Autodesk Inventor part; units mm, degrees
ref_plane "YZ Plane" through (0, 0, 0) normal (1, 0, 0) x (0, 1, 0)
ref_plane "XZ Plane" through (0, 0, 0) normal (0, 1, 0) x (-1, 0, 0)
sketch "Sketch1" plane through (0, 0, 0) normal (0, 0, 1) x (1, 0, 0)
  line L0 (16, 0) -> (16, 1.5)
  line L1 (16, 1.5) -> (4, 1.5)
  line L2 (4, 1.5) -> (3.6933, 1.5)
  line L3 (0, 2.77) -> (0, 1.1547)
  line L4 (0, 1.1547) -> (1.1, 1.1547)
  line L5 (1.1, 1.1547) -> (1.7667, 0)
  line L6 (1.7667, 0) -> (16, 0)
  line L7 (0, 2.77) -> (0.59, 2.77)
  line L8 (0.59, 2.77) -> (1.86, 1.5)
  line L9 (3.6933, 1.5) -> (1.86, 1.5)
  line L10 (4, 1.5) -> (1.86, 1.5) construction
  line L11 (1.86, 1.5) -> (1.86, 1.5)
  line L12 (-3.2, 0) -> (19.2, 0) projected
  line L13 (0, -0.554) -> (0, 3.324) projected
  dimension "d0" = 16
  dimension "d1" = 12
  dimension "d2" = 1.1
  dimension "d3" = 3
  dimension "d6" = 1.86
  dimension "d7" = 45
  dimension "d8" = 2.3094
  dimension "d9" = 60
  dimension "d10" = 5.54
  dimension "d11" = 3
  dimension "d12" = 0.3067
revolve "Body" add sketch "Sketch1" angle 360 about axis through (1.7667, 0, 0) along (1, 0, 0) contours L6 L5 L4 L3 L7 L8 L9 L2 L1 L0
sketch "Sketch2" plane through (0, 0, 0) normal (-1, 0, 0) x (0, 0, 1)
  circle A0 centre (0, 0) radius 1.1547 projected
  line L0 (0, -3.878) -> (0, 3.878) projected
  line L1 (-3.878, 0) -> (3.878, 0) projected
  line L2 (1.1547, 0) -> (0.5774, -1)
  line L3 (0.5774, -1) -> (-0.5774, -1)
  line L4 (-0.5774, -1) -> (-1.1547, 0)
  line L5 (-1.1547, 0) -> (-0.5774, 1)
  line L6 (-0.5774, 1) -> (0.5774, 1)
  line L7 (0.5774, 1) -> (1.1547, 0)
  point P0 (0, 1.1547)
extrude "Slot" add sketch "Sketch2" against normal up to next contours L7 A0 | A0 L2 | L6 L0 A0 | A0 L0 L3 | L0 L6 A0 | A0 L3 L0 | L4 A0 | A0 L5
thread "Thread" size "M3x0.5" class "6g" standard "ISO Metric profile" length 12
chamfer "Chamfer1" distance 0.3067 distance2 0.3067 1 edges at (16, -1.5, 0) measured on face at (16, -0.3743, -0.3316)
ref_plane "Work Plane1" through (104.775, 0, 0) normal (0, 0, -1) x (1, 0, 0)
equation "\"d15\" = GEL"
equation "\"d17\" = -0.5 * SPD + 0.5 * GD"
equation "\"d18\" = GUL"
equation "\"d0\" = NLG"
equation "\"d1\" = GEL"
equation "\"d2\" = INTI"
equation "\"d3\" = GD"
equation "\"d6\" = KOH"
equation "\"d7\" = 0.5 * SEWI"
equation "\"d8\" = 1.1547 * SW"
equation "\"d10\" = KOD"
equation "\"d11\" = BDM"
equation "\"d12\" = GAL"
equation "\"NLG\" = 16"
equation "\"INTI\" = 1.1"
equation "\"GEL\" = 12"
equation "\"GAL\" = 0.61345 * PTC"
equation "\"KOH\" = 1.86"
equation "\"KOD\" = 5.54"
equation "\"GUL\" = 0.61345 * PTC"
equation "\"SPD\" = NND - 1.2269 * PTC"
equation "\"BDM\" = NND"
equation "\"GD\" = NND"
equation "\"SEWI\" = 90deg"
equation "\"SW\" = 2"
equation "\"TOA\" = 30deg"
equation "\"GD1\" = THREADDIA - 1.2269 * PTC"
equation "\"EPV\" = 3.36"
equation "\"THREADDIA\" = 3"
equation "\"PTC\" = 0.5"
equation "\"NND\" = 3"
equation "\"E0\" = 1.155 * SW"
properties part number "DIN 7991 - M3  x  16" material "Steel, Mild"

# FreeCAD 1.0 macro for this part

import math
import FreeCAD as App
import Part
import Sketcher
Q = App.Units.Quantity


def edges_at(feature, points):
    """Names of the edges that pass closest to the given points."""
    edges = feature.Shape.Edges
    near = lambda p: min(range(len(edges)), key=lambda i: edges[i].distToShape(Part.Vertex(*p))[0])
    return sorted({f"Edge{near(p) + 1}" for p in points})


def add_polygon(sketch, points):
    """Adds a closed chain of lines whose ends are joined by coincident constraints."""
    first, n = sketch.GeometryCount, len(points)
    for a, b in zip(points, points[1:] + points[:1]):
        sketch.addGeometry(Part.LineSegment(App.Vector(*a, 0), App.Vector(*b, 0)), False)
    for i in range(n):
        sketch.addConstraint(Sketcher.Constraint("Coincident", first + i, 2, first + (i + 1) % n, 1))

doc = App.newDocument("Part")
body = doc.addObject("PartDesign::Body", "Body")

# Sketch on XY plane
sketch1 = doc.addObject("Sketcher::SketchObject", "Sketch")
body.addObject(sketch1)
sketch1.AttachmentSupport = (doc.XY_Plane, [""])
sketch1.MapMode = "FlatFace"
add_polygon(sketch1, [(1.8, 0), (16, 0), (16, 1.5), (1.9, 1.5), (0.6, 2.8), (0, 2.8), (0, 1.2), (1.1, 1.2)])  # lines 0-7
sketch1.addConstraint([
    Sketcher.Constraint("Horizontal", 0),
    Sketcher.Constraint("Vertical", 1),
    Sketcher.Constraint("Horizontal", 2),
    Sketcher.Constraint("Horizontal", 4),
    Sketcher.Constraint("Vertical", 5),
    Sketcher.Constraint("Horizontal", 6),
    Sketcher.Constraint("PointOnObject", 0, 2, -1),
    Sketcher.Constraint("PointOnObject", 4, 2, -2),
    Sketcher.Constraint("DistanceX", 6, 1, 6, 2, Q("1.1 mm")),
    Sketcher.Constraint("DistanceX", -1, 1, 0, 2, Q("16 mm")),
    Sketcher.Constraint("DistanceX", -1, 1, 2, 2, Q("1.86 mm")),
    Sketcher.Constraint("Angle", 3, Q("135 deg")),
    Sketcher.Constraint("DistanceY", 1, 1, 1, 2, Q("1.5 mm")),
    Sketcher.Constraint("DistanceX", 4, 2, 4, 1, Q("0.59 mm")),
    Sketcher.Constraint("DistanceX", 0, 1, 0, 2, Q("14.2333 mm")),
    Sketcher.Constraint("DistanceY", 5, 2, 5, 1, Q("1.6153 mm")),
])
revolution = doc.addObject("PartDesign::Revolution", "Revolution")
body.addObject(revolution)
revolution.Profile = sketch1
revolution.ReferenceAxis = (sketch1, ["H_Axis"])
revolution.Angle = 360

# Sketch on YZ plane
sketch2 = doc.addObject("Sketcher::SketchObject", "Sketch001")
body.addObject(sketch2)
sketch2.AttachmentSupport = (doc.YZ_Plane, [""])
sketch2.MapMode = "FlatFace"
sketch2.addGeometry([
    Part.LineSegment(App.Vector(1, 0.6, 0), App.Vector(0, 1.2, 0)),  # 0
    Part.ArcOfCircle(Part.Circle(App.Vector(0, 0, 0), App.Vector(0, 0, 1), 1.2), math.radians(30), math.radians(90)),  # 1
    Part.ArcOfCircle(Part.Circle(App.Vector(0, 0, 0), App.Vector(0, 0, 1), 1.2), math.radians(90), math.radians(150)),  # 2
    Part.LineSegment(App.Vector(0, 1.2, 0), App.Vector(-1, 0.6, 0)),  # 3
    Part.ArcOfCircle(Part.Circle(App.Vector(0, 0, 0), App.Vector(0, 0, 1), 1.2), math.radians(-30), math.radians(30)),  # 4
    Part.LineSegment(App.Vector(1, 0.6, 0), App.Vector(1, -0.6, 0)),  # 5
    Part.LineSegment(App.Vector(-1, 0.6, 0), App.Vector(-1, -0.6, 0)),  # 6
    Part.ArcOfCircle(Part.Circle(App.Vector(0, 0, 0), App.Vector(0, 0, 1), 1.2), math.radians(150), math.radians(210)),  # 7
    Part.LineSegment(App.Vector(-1, -0.6, 0), App.Vector(0, -1.2, 0)),  # 8
    Part.ArcOfCircle(Part.Circle(App.Vector(0, 0, 0), App.Vector(0, 0, 1), 1.2), math.radians(-150), math.radians(-90)),  # 9
    Part.ArcOfCircle(Part.Circle(App.Vector(0, 0, 0), App.Vector(0, 0, 1), 1.2), math.radians(-90), math.radians(-30)),  # 10
    Part.LineSegment(App.Vector(0, -1.2, 0), App.Vector(1, -0.6, 0)),  # 11
], False)
sketch2.addConstraint([
    Sketcher.Constraint("Coincident", 0, 1, 1, 1),
    Sketcher.Constraint("Coincident", 1, 2, 0, 2),
    Sketcher.Constraint("Coincident", 2, 1, 3, 1),
    Sketcher.Constraint("Coincident", 3, 2, 2, 2),
    Sketcher.Constraint("Coincident", 4, 1, 5, 2),
    Sketcher.Constraint("Coincident", 5, 1, 4, 2),
    Sketcher.Constraint("Coincident", 6, 1, 7, 1),
    Sketcher.Constraint("Coincident", 7, 2, 6, 2),
    Sketcher.Constraint("Coincident", 8, 1, 9, 1),
    Sketcher.Constraint("Coincident", 9, 2, 8, 2),
    Sketcher.Constraint("Coincident", 10, 1, 11, 1),
    Sketcher.Constraint("Coincident", 11, 2, 10, 2),
    Sketcher.Constraint("Vertical", 5),
    Sketcher.Constraint("Vertical", 6),
    Sketcher.Constraint("Coincident", 1, 3, -1, 1),
    Sketcher.Constraint("Coincident", 2, 3, -1, 1),
    Sketcher.Constraint("Coincident", 4, 3, -1, 1),
    Sketcher.Constraint("Coincident", 7, 3, -1, 1),
    Sketcher.Constraint("Coincident", 9, 3, -1, 1),
    Sketcher.Constraint("Coincident", 10, 3, -1, 1),
    Sketcher.Constraint("Coincident", 2, 1, 1, 2),
    Sketcher.Constraint("Coincident", 5, 1, 0, 1),
    Sketcher.Constraint("Coincident", 6, 1, 3, 2),
    Sketcher.Constraint("Coincident", 8, 1, 7, 2),
    Sketcher.Constraint("Coincident", 10, 1, 9, 2),
    Sketcher.Constraint("PointOnObject", 1, 2, -2),
    Sketcher.Constraint("PointOnObject", 9, 2, -2),
    Sketcher.Constraint("Parallel", 0, 8),
    Sketcher.Constraint("Parallel", 3, 11),
    Sketcher.Constraint("DistanceX", -1, 1, 0, 1, Q("1 mm")),
    Sketcher.Constraint("Radius", 1, Q("1.1547 mm")),
])
pad1 = doc.addObject("PartDesign::Pad", "Pad")
body.addObject(pad1)
pad1.Profile = sketch2
pad1.Type = "UpToFirst"
doc.recompute()

chamfer = doc.addObject("PartDesign::Chamfer", "Chamfer")
body.addObject(chamfer)
chamfer.Base = (pad1, edges_at(pad1, [(16, -1.5, 0)]))
chamfer.ChamferType = "Two distances"
chamfer.Size = 0.3067
chamfer.Size2 = 0.3067

doc.recompute()
